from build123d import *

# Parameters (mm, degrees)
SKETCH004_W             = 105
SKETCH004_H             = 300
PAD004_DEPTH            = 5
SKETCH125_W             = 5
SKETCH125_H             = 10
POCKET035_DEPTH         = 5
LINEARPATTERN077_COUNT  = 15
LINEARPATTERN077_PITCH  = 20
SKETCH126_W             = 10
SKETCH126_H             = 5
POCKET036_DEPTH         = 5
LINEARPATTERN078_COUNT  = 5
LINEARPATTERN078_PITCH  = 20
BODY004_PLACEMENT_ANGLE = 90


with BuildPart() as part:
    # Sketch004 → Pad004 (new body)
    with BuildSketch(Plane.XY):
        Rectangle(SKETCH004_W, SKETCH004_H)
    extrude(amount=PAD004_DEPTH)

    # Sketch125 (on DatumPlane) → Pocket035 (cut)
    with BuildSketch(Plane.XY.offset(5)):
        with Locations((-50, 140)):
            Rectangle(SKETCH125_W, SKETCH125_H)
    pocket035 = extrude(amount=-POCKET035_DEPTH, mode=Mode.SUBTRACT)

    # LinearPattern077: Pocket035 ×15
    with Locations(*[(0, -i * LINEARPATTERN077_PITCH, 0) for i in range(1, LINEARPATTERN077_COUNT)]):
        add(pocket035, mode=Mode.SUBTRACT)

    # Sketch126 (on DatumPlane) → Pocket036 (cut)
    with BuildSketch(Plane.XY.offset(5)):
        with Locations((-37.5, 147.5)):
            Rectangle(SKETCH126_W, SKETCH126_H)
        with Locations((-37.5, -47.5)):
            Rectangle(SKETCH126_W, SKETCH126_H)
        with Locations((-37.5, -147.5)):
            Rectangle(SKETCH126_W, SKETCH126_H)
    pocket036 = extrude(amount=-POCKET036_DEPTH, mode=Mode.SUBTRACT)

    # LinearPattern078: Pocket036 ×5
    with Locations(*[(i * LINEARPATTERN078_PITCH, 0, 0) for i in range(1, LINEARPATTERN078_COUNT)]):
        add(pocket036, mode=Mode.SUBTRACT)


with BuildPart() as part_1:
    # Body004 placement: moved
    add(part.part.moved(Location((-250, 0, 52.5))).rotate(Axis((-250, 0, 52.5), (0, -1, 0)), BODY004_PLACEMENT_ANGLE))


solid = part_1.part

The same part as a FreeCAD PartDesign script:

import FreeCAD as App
import Part
import Sketcher
from FreeCAD import Vector

doc = App.newDocument("Part")
params = doc.addObject("Spreadsheet::Sheet", "Params")
for row, (alias, value) in enumerate([
    ("sketch1_width", "105 mm"),
    ("sketch1_height", "300 mm"),
    ("pad1_length", "5 mm"),
    ("sketch2_width", "5 mm"),
    ("sketch2_height", "10 mm"),
    ("pocket1_length", "5 mm"),
    ("linearpattern_pitch", "20 mm"),
    ("sketch3_width", "10 mm"),
    ("sketch3_height", "5 mm"),
    ("pocket2_length", "5 mm"),
    ("linearpattern2_pitch", "20 mm"),
], start=1):
    params.set(f"A{row}", alias)
    params.set(f"B{row}", "=" + value)
    params.setAlias(f"B{row}", alias)

body = doc.addObject("PartDesign::Body", "Body")

# Sketch on XY plane
sketch1 = doc.addObject("Sketcher::SketchObject", "Sketch")
body.addObject(sketch1)
sketch1.AttachmentSupport = (doc.XY_Plane, [""])
sketch1.MapMode = "FlatFace"
sketch1.addGeometry(Part.LineSegment(Vector(-52.5, 150, 0), Vector(-52.5, -150, 0)), False)
sketch1.addGeometry(Part.LineSegment(Vector(-52.5, -150, 0), Vector(52.5, -150, 0)), False)
sketch1.addGeometry(Part.LineSegment(Vector(52.5, -150, 0), Vector(52.5, 150, 0)), False)
sketch1.addGeometry(Part.LineSegment(Vector(52.5, 150, 0), Vector(-52.5, 150, 0)), False)
sketch1.addConstraint(Sketcher.Constraint("Coincident", 0, 2, 1, 1))
sketch1.addConstraint(Sketcher.Constraint("Coincident", 1, 2, 2, 1))
sketch1.addConstraint(Sketcher.Constraint("Coincident", 2, 2, 3, 1))
sketch1.addConstraint(Sketcher.Constraint("Coincident", 3, 2, 0, 1))
sketch1.addConstraint(Sketcher.Constraint("Vertical", 0))
sketch1.addConstraint(Sketcher.Constraint("Horizontal", 1))
sketch1.addConstraint(Sketcher.Constraint("Vertical", 2))
sketch1.addConstraint(Sketcher.Constraint("Horizontal", 3))
sketch1.addConstraint(Sketcher.Constraint("Symmetric", 0, 2, 2, 2, -1, 1))
sketch1.addConstraint(Sketcher.Constraint("DistanceX", 1, 1, 1, 2, 105.0))
sketch1.addConstraint(Sketcher.Constraint("DistanceY", 0, 2, 0, 1, 300.0))
sketch1.setExpression("Constraints[9]", "Params.sketch1_width")
sketch1.setExpression("Constraints[10]", "Params.sketch1_height")
pad1 = doc.addObject("PartDesign::Pad", "Pad")
body.addObject(pad1)
pad1.Profile = sketch1
pad1.setExpression("Length", "Params.pad1_length")

# Sketch on XY plane
sketch2 = doc.addObject("Sketcher::SketchObject", "Sketch001")
body.addObject(sketch2)
sketch2.AttachmentSupport = (doc.XY_Plane, [""])
sketch2.MapMode = "FlatFace"
sketch2.AttachmentOffset = App.Placement(Vector(0, 0, 5), App.Rotation())
sketch2.addGeometry(Part.LineSegment(Vector(-52.5, 145, 0), Vector(-52.5, 135, 0)), False)
sketch2.addGeometry(Part.LineSegment(Vector(-52.5, 135, 0), Vector(-47.5, 135, 0)), False)
sketch2.addGeometry(Part.LineSegment(Vector(-47.5, 135, 0), Vector(-47.5, 145, 0)), False)
sketch2.addGeometry(Part.LineSegment(Vector(-47.5, 145, 0), Vector(-52.5, 145, 0)), False)
sketch2.addConstraint(Sketcher.Constraint("Coincident", 0, 2, 1, 1))
sketch2.addConstraint(Sketcher.Constraint("Coincident", 1, 2, 2, 1))
sketch2.addConstraint(Sketcher.Constraint("Coincident", 2, 2, 3, 1))
sketch2.addConstraint(Sketcher.Constraint("Coincident", 3, 2, 0, 1))
sketch2.addConstraint(Sketcher.Constraint("Vertical", 0))
sketch2.addConstraint(Sketcher.Constraint("Horizontal", 1))
sketch2.addConstraint(Sketcher.Constraint("Vertical", 2))
sketch2.addConstraint(Sketcher.Constraint("Horizontal", 3))
sketch2.addConstraint(Sketcher.Constraint("DistanceX", 1, 1, 1, 2, 5.0))
sketch2.addConstraint(Sketcher.Constraint("DistanceY", 0, 2, 0, 1, 10.0))
sketch2.addConstraint(Sketcher.Constraint("DistanceY", -1, 1, 0, 2, 135.0))
sketch2.addConstraint(Sketcher.Constraint("DistanceX", 0, 2, -1, 1, 52.5))
sketch2.setExpression("Constraints[8]", "Params.sketch2_width")
sketch2.setExpression("Constraints[9]", "Params.sketch2_height")
pocket1 = doc.addObject("PartDesign::Pocket", "Pocket")
body.addObject(pocket1)
pocket1.Profile = sketch2
pocket1.setExpression("Length", "Params.pocket1_length")
doc.recompute()

linearpattern = doc.addObject("PartDesign::LinearPattern", "LinearPattern")
body.addObject(linearpattern)
linearpattern.Originals = [pocket1]
linearpattern.Direction = (doc.Y_Axis, [""])
linearpattern.Mode = "offset"
linearpattern.setExpression("Offset", "Params.linearpattern_pitch")
linearpattern.Occurrences = 15
linearpattern.Reversed = True
body.Tip = linearpattern

# Sketch on XY plane
sketch3 = doc.addObject("Sketcher::SketchObject", "Sketch002")
body.addObject(sketch3)
sketch3.AttachmentSupport = (doc.XY_Plane, [""])
sketch3.MapMode = "FlatFace"
sketch3.AttachmentOffset = App.Placement(Vector(0, 0, 5), App.Rotation())
sketch3.addGeometry(Part.LineSegment(Vector(-42.5, 150, 0), Vector(-42.5, 145, 0)), False)
sketch3.addGeometry(Part.LineSegment(Vector(-42.5, 145, 0), Vector(-32.5, 145, 0)), False)
sketch3.addGeometry(Part.LineSegment(Vector(-32.5, 145, 0), Vector(-32.5, 150, 0)), False)
sketch3.addGeometry(Part.LineSegment(Vector(-32.5, 150, 0), Vector(-42.5, 150, 0)), False)
sketch3.addGeometry(Part.LineSegment(Vector(-42.5, -45, 0), Vector(-42.5, -50, 0)), False)
sketch3.addGeometry(Part.LineSegment(Vector(-42.5, -50, 0), Vector(-32.5, -50, 0)), False)
sketch3.addGeometry(Part.LineSegment(Vector(-32.5, -50, 0), Vector(-32.5, -45, 0)), False)
sketch3.addGeometry(Part.LineSegment(Vector(-32.5, -45, 0), Vector(-42.5, -45, 0)), False)
sketch3.addGeometry(Part.LineSegment(Vector(-42.5, -145, 0), Vector(-42.5, -150, 0)), False)
sketch3.addGeometry(Part.LineSegment(Vector(-42.5, -150, 0), Vector(-32.5, -150, 0)), False)
sketch3.addGeometry(Part.LineSegment(Vector(-32.5, -150, 0), Vector(-32.5, -145, 0)), False)
sketch3.addGeometry(Part.LineSegment(Vector(-32.5, -145, 0), Vector(-42.5, -145, 0)), False)
sketch3.addConstraint(Sketcher.Constraint("Coincident", 0, 2, 1, 1))
sketch3.addConstraint(Sketcher.Constraint("Coincident", 1, 2, 2, 1))
sketch3.addConstraint(Sketcher.Constraint("Coincident", 2, 2, 3, 1))
sketch3.addConstraint(Sketcher.Constraint("Coincident", 3, 2, 0, 1))
sketch3.addConstraint(Sketcher.Constraint("Coincident", 4, 2, 5, 1))
sketch3.addConstraint(Sketcher.Constraint("Coincident", 5, 2, 6, 1))
sketch3.addConstraint(Sketcher.Constraint("Coincident", 6, 2, 7, 1))
sketch3.addConstraint(Sketcher.Constraint("Coincident", 7, 2, 4, 1))
sketch3.addConstraint(Sketcher.Constraint("Coincident", 8, 2, 9, 1))
sketch3.addConstraint(Sketcher.Constraint("Coincident", 9, 2, 10, 1))
sketch3.addConstraint(Sketcher.Constraint("Coincident", 10, 2, 11, 1))
sketch3.addConstraint(Sketcher.Constraint("Coincident", 11, 2, 8, 1))
sketch3.addConstraint(Sketcher.Constraint("Vertical", 0))
sketch3.addConstraint(Sketcher.Constraint("Horizontal", 1))
sketch3.addConstraint(Sketcher.Constraint("Vertical", 2))
sketch3.addConstraint(Sketcher.Constraint("Horizontal", 3))
sketch3.addConstraint(Sketcher.Constraint("Vertical", 4))
sketch3.addConstraint(Sketcher.Constraint("Horizontal", 5))
sketch3.addConstraint(Sketcher.Constraint("Vertical", 6))
sketch3.addConstraint(Sketcher.Constraint("Horizontal", 7))
sketch3.addConstraint(Sketcher.Constraint("Vertical", 8))
sketch3.addConstraint(Sketcher.Constraint("Horizontal", 9))
sketch3.addConstraint(Sketcher.Constraint("Vertical", 10))
sketch3.addConstraint(Sketcher.Constraint("Horizontal", 11))
sketch3.addConstraint(Sketcher.Constraint("Symmetric", 3, 2, 8, 2, -1))
sketch3.addConstraint(Sketcher.Constraint("Symmetric", 1, 2, 10, 2, -1))
sketch3.addConstraint(Sketcher.Constraint("Vertical", 3, 2, 4, 2))
sketch3.addConstraint(Sketcher.Constraint("Vertical", 2, 2, 5, 2))
sketch3.addConstraint(Sketcher.Constraint("Equal", 2, 4))
sketch3.addConstraint(Sketcher.Constraint("DistanceX", 1, 1, 1, 2, 10.0))
sketch3.addConstraint(Sketcher.Constraint("DistanceY", 0, 2, 0, 1, 5.0))
sketch3.addConstraint(Sketcher.Constraint("DistanceY", -1, 1, 0, 2, 145.0))
sketch3.addConstraint(Sketcher.Constraint("DistanceY", 4, 2, -1, 1, 50.0))
sketch3.addConstraint(Sketcher.Constraint("DistanceX", 0, 2, -1, 1, 42.5))
sketch3.setExpression("Constraints[29]", "Params.sketch3_width")
sketch3.setExpression("Constraints[30]", "Params.sketch3_height")
pocket2 = doc.addObject("PartDesign::Pocket", "Pocket001")
body.addObject(pocket2)
pocket2.Profile = sketch3
pocket2.setExpression("Length", "Params.pocket2_length")
doc.recompute()

linearpattern2 = doc.addObject("PartDesign::LinearPattern", "LinearPattern001")
body.addObject(linearpattern2)
linearpattern2.Originals = [pocket2]
linearpattern2.Direction = (doc.X_Axis, [""])
linearpattern2.Mode = "offset"
linearpattern2.setExpression("Offset", "Params.linearpattern2_pitch")
linearpattern2.Occurrences = 5
body.Tip = linearpattern2
body2 = doc.addObject("PartDesign::Body", "Body001")
doc.recompute()

body.Placement = App.Placement(Vector(-250, 0, 52.5), App.Rotation(Vector(0, -1, 0), 90))
boolean = doc.addObject("PartDesign::Boolean", "Boolean")
body2.addObject(boolean)
boolean.Type = "Fuse"
boolean.addObjects([body])

doc.recompute()
